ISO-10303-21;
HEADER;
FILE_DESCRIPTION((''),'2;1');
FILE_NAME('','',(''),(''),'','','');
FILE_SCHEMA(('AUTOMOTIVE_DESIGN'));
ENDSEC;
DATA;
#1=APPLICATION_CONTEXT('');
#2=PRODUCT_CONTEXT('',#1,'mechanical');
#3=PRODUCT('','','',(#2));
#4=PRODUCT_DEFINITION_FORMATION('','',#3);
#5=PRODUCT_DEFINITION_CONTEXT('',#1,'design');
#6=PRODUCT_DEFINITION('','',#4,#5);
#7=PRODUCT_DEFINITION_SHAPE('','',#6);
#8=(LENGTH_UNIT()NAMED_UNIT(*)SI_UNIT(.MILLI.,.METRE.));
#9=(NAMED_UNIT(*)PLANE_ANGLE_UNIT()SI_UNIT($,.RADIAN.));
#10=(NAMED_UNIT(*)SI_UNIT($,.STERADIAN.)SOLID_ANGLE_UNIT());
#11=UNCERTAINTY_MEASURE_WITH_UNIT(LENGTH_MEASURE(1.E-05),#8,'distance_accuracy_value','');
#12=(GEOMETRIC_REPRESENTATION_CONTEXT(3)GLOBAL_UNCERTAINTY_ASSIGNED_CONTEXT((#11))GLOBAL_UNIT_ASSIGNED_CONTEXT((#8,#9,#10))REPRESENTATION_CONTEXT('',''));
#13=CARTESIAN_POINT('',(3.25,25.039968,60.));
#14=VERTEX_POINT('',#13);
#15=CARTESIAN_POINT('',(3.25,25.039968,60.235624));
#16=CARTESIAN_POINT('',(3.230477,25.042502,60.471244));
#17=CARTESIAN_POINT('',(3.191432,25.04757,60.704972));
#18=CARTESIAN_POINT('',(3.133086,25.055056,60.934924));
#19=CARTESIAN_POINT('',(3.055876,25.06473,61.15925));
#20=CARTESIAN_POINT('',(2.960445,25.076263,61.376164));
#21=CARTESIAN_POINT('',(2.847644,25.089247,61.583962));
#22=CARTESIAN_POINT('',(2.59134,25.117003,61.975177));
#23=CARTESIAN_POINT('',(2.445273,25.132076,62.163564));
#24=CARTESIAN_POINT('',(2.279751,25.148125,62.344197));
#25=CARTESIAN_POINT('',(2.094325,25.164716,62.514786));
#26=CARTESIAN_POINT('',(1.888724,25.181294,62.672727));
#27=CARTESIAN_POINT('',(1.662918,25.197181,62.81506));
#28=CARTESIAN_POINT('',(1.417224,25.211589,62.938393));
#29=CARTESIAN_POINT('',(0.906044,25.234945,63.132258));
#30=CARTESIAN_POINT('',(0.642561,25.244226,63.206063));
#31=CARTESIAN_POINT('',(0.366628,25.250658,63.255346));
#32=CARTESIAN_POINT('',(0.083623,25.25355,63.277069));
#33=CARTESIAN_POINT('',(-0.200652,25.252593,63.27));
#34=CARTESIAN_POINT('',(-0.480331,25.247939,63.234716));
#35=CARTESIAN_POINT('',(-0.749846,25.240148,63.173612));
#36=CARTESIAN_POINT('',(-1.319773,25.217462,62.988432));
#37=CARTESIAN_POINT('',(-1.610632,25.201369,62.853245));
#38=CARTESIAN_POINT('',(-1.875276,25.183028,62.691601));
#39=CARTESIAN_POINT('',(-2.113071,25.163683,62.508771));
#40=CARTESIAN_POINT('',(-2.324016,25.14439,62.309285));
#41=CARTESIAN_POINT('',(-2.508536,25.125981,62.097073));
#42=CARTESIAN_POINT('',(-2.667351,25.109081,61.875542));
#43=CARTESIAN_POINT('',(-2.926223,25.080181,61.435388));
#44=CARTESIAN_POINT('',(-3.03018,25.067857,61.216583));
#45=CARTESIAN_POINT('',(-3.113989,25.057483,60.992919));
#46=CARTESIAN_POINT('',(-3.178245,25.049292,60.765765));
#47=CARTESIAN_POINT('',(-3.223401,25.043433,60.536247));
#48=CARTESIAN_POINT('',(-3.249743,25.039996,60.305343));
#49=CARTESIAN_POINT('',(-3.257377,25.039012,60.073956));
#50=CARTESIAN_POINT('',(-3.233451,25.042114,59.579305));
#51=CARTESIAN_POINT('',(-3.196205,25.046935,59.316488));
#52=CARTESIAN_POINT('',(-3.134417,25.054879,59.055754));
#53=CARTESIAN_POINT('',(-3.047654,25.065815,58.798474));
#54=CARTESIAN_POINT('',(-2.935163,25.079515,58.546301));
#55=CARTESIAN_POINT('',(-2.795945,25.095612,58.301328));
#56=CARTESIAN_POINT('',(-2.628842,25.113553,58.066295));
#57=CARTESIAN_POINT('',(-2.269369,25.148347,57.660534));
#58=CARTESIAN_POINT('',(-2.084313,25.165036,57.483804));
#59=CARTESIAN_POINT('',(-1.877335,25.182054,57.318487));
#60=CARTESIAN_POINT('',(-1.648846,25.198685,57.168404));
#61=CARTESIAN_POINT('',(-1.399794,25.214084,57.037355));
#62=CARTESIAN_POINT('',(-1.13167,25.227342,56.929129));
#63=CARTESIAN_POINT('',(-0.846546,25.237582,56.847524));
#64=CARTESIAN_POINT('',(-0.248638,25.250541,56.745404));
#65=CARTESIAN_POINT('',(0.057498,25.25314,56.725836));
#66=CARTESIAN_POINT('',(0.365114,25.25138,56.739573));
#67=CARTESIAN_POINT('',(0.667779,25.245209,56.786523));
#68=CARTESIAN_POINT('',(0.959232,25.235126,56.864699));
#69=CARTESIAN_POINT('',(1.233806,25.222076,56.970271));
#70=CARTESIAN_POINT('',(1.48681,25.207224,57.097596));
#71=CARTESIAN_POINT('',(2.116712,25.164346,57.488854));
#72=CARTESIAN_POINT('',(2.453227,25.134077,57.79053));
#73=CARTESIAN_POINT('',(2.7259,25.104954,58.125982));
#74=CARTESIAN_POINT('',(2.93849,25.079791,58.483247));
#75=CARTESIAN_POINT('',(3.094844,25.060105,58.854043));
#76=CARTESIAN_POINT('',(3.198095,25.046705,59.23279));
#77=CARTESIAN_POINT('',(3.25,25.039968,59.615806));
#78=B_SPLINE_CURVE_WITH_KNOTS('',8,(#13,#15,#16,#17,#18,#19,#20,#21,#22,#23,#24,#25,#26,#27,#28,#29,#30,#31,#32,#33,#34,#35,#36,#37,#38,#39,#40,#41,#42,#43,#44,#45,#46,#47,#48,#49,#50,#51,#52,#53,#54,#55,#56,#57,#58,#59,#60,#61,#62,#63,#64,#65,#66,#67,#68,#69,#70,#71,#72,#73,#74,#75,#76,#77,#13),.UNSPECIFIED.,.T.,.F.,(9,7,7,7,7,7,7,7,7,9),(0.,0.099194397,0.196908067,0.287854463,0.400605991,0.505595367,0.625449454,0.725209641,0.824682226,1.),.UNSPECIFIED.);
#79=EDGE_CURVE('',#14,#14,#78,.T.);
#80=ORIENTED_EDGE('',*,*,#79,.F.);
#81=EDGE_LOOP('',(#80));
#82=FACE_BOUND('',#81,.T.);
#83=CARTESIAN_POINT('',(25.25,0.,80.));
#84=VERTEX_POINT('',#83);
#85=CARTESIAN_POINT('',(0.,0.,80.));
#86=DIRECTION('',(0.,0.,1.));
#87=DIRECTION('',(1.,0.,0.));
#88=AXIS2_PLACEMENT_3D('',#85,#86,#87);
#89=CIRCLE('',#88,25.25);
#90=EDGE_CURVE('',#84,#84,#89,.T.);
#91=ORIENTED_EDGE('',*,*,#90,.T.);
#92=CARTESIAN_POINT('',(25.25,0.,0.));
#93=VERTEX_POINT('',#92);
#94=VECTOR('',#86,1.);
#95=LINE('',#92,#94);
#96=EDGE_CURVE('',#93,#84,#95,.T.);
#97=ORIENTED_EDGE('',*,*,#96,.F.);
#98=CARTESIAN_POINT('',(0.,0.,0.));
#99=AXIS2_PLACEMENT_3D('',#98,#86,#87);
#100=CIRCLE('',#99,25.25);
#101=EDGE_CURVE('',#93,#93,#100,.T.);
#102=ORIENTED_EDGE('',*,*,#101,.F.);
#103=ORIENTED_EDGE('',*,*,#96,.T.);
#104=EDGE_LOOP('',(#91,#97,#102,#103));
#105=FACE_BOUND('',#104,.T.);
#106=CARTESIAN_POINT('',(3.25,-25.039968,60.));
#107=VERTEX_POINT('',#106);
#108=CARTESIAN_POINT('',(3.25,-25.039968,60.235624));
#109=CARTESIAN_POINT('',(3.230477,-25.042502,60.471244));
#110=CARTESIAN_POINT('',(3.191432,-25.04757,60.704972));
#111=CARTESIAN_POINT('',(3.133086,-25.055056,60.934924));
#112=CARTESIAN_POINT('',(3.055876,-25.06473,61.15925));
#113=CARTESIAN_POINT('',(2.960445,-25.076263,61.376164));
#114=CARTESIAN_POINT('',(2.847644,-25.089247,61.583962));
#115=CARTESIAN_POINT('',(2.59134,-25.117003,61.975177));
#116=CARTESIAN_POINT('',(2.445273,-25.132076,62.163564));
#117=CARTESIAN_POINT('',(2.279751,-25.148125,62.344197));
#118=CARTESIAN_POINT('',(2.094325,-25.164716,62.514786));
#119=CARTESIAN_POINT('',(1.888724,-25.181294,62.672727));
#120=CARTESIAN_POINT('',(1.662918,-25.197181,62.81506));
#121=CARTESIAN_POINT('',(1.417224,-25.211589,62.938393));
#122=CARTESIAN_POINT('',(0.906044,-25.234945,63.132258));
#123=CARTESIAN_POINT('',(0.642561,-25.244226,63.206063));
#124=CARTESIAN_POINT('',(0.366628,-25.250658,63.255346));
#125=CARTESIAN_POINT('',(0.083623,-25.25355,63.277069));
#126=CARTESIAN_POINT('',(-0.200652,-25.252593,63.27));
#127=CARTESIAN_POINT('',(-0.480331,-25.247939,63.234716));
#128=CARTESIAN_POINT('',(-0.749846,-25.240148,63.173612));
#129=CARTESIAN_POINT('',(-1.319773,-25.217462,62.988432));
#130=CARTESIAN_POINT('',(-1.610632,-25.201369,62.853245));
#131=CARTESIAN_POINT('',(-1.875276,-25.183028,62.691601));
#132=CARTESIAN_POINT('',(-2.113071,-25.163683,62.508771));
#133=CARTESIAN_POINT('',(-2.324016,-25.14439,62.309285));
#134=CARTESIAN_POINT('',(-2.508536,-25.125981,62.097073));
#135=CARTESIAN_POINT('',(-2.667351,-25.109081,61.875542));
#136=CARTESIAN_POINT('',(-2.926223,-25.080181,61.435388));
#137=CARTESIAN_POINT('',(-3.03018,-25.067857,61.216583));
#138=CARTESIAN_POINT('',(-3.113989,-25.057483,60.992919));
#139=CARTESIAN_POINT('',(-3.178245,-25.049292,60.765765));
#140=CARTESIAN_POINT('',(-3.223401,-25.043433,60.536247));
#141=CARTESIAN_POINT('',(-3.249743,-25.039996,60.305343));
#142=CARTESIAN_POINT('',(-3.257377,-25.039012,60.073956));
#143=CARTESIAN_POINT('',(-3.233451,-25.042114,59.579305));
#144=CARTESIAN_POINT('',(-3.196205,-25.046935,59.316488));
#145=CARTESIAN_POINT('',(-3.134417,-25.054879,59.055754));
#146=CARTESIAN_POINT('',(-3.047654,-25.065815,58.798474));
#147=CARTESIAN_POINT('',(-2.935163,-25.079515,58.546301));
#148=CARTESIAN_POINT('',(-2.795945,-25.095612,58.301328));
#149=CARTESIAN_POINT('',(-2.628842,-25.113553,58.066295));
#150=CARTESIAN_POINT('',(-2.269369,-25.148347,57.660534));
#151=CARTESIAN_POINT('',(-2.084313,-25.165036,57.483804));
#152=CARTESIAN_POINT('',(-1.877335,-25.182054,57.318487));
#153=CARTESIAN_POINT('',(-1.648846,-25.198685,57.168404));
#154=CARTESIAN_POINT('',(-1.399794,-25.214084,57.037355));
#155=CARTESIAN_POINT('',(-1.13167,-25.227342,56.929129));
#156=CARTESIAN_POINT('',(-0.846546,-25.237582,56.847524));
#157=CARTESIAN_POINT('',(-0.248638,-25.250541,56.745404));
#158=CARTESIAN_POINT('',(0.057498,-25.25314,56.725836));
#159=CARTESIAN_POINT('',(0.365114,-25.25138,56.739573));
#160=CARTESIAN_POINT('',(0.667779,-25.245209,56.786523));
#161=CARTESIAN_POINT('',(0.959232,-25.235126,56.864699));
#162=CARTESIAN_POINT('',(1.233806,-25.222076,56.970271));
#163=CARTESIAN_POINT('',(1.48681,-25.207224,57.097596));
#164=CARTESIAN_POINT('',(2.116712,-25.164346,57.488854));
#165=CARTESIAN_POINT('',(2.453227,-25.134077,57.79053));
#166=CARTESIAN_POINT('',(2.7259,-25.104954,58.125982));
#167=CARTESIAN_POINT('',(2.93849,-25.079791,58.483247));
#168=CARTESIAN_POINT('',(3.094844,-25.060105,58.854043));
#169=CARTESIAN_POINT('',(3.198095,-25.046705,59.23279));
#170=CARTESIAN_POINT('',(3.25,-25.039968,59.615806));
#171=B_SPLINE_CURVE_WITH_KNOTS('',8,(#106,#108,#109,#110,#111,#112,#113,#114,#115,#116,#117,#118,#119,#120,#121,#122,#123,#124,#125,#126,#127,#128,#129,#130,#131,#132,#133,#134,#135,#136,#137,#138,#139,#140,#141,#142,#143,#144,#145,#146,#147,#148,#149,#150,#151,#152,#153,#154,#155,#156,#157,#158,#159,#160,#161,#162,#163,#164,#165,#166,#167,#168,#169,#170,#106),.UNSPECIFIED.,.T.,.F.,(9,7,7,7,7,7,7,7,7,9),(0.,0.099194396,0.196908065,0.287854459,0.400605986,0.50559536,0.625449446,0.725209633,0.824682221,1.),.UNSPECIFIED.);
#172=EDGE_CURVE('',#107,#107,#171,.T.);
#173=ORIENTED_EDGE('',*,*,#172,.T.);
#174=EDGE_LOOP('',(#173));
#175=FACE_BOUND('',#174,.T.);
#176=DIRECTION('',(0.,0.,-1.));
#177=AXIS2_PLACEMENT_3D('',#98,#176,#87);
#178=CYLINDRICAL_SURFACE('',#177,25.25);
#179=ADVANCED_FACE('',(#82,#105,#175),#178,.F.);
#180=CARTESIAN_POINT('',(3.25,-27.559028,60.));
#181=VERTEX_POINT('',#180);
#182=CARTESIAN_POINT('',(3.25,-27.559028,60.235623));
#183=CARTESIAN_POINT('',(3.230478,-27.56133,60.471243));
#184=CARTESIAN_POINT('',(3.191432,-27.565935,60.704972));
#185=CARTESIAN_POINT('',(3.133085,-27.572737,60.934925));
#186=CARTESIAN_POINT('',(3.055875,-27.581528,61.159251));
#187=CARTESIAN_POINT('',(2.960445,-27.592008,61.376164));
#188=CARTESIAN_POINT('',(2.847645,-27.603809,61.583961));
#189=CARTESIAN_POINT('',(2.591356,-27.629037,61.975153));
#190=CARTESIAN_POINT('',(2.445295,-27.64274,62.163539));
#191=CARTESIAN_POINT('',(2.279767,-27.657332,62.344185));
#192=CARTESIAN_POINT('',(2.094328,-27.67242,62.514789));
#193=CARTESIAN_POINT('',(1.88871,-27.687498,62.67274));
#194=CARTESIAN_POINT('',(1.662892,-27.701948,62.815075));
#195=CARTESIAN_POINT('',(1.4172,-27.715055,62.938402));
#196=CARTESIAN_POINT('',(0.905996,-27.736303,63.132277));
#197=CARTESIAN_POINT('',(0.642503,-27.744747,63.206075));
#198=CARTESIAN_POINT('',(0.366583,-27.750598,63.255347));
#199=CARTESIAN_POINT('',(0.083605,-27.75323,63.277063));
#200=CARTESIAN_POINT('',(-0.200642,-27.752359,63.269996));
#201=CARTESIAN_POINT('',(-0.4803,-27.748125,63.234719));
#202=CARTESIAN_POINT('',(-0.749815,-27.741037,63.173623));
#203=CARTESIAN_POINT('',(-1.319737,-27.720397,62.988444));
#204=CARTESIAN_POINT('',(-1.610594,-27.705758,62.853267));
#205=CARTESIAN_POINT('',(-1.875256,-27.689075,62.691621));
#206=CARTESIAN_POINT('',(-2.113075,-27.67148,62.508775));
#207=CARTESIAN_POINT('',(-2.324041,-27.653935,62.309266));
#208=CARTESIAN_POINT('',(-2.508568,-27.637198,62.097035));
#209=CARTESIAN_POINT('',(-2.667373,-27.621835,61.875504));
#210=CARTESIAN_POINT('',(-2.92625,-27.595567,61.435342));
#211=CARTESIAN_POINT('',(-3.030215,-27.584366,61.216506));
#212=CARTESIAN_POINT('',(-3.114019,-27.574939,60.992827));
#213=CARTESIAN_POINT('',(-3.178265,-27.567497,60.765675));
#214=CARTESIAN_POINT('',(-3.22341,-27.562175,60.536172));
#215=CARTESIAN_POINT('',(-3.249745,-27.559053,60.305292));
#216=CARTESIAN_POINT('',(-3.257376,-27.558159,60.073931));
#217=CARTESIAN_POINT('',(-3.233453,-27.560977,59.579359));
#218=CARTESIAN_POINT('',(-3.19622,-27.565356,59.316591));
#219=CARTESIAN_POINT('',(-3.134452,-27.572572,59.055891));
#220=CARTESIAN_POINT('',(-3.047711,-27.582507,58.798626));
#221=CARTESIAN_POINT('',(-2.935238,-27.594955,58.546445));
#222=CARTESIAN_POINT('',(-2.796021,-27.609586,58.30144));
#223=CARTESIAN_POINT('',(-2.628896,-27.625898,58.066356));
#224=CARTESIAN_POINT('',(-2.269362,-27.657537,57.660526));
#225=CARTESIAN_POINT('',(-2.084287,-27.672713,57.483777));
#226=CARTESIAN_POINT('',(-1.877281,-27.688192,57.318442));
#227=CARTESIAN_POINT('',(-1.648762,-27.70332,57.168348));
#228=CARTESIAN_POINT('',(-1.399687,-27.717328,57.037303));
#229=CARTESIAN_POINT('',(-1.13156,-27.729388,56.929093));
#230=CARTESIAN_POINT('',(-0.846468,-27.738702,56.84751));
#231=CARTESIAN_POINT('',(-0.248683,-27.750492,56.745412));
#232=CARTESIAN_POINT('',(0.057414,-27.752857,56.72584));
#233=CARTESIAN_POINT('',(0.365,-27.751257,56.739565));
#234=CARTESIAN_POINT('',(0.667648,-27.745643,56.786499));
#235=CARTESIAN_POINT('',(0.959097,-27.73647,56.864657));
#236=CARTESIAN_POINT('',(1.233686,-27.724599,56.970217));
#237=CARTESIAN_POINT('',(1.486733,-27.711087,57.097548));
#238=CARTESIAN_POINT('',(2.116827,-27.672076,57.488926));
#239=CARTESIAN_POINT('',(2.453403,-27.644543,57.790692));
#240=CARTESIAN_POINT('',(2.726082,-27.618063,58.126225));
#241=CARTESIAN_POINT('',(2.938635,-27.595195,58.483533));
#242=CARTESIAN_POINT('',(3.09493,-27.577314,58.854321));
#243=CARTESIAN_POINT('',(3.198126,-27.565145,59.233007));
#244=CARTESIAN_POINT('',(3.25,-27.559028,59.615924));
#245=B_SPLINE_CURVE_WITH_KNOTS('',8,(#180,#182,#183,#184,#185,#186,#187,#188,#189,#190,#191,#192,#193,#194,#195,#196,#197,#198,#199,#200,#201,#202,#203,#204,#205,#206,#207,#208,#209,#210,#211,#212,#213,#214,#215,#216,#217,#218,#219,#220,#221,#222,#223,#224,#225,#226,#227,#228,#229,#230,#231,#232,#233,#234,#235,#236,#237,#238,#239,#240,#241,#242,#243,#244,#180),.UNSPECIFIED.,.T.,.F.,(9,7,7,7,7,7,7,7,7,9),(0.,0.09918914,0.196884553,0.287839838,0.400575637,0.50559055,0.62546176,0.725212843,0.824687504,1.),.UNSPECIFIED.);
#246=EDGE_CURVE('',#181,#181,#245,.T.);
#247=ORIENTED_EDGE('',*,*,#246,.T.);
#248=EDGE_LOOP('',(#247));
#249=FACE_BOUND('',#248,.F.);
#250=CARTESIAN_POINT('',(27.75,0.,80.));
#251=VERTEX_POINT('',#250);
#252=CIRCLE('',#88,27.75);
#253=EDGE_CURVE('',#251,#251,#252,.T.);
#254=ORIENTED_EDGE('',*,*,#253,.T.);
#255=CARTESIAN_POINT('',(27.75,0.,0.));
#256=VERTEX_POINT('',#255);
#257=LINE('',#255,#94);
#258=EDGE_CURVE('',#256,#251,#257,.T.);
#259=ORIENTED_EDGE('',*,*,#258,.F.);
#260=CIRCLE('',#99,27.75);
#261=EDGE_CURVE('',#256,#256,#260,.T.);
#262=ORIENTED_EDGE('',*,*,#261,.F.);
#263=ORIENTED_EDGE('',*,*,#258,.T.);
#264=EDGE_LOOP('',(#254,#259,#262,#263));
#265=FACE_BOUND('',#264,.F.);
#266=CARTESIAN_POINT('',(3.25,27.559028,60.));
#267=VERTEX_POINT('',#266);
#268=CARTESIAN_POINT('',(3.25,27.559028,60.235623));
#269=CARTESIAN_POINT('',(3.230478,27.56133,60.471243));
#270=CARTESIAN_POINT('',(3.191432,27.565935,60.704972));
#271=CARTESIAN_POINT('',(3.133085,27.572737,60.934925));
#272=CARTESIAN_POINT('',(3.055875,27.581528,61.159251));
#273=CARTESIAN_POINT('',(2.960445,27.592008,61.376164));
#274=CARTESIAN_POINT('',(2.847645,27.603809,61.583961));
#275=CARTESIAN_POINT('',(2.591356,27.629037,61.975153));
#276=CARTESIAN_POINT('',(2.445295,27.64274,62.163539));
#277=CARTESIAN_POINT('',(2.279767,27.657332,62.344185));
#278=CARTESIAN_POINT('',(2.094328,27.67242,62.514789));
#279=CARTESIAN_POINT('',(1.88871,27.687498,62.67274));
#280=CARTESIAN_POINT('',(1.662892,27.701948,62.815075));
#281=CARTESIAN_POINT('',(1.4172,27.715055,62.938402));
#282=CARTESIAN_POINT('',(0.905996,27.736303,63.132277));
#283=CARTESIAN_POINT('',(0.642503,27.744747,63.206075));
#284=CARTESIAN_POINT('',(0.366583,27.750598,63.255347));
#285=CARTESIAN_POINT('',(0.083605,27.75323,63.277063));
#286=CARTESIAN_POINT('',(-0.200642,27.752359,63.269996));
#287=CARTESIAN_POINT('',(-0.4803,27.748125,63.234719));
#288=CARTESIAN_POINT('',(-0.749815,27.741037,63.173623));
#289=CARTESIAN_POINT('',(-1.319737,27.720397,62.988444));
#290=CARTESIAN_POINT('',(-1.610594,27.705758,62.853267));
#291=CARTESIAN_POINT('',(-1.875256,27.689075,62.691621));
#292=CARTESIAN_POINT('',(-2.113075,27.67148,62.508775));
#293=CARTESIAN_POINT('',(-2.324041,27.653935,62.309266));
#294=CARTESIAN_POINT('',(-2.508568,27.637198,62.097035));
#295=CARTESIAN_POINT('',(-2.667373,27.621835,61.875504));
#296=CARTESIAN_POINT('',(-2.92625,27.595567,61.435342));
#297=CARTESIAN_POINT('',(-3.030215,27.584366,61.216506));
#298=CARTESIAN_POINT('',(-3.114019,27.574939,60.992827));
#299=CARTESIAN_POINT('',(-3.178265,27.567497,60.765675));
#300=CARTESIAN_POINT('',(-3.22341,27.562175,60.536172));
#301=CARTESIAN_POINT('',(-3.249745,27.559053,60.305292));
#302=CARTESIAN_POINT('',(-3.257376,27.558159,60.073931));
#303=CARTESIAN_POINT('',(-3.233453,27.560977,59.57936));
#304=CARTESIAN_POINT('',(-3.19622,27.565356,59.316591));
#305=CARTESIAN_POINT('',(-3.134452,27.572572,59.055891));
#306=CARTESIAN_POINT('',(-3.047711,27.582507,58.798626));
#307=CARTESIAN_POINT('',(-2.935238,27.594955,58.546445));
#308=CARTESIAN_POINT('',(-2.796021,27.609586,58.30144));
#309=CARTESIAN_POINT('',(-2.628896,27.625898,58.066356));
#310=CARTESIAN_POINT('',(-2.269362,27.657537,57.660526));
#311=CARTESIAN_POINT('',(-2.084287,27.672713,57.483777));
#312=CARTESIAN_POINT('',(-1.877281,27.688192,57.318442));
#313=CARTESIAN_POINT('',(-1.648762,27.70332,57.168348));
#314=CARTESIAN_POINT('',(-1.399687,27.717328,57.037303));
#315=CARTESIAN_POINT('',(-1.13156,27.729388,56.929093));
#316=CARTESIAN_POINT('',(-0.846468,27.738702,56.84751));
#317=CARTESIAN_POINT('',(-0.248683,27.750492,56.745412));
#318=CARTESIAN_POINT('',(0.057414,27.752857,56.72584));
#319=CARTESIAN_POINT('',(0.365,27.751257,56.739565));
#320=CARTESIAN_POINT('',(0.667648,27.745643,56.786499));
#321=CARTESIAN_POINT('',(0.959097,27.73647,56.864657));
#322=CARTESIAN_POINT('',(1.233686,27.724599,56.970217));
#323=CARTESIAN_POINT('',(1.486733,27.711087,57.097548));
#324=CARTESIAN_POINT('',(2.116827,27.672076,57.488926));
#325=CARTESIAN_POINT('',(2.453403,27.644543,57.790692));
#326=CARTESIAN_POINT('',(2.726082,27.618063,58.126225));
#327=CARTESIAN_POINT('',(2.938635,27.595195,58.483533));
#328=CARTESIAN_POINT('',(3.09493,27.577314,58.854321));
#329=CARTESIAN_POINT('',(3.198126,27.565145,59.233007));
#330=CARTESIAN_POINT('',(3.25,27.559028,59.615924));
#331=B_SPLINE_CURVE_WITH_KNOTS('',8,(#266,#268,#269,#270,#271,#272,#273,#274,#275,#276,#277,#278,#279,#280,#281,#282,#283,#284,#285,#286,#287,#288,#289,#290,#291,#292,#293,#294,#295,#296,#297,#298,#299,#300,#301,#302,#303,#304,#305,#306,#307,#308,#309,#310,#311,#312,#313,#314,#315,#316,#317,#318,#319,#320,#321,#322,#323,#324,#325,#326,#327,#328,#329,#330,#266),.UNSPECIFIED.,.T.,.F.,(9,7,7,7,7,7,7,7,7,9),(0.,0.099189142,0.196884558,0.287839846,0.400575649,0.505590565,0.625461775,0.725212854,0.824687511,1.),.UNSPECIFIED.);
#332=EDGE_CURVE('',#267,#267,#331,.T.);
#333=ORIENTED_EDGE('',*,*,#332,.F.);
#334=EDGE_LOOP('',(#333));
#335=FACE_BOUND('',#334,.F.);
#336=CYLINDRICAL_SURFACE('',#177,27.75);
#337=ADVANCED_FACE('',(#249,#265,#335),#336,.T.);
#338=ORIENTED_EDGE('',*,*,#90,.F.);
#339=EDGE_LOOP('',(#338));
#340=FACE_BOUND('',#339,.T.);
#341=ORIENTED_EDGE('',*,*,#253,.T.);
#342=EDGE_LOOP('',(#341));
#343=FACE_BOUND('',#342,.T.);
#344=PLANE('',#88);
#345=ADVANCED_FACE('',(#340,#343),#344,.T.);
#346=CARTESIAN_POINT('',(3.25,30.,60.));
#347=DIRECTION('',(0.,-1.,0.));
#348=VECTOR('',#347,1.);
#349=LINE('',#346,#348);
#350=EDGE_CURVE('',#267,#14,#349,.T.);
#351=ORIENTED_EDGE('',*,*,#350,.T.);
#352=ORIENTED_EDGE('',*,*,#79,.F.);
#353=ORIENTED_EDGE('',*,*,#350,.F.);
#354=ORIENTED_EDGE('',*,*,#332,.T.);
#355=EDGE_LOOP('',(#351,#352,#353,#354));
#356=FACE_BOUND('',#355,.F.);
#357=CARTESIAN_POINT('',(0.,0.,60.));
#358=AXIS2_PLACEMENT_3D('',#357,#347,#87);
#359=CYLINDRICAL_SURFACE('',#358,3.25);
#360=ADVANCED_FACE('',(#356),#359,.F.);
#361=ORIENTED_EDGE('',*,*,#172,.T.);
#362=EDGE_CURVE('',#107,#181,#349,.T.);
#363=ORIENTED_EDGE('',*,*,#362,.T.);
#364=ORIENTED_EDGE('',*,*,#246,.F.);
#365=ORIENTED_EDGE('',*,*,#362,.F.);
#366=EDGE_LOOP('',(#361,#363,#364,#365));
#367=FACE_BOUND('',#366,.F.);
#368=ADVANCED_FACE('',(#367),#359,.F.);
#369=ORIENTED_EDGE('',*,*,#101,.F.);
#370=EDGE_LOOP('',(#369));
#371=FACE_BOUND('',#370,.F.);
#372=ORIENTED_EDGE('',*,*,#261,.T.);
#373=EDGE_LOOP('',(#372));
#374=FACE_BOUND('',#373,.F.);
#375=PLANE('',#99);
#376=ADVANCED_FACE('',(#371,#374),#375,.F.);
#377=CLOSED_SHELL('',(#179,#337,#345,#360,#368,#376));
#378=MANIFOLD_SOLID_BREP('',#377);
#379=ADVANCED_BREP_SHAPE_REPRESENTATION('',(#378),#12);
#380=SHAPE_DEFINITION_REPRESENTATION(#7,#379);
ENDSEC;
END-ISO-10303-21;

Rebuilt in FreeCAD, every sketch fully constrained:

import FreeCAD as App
import Part
import Sketcher
Q = App.Units.Quantity


def faces_at(feature, points):
    """Names of the faces that lie closest to the given points."""
    faces = feature.Shape.Faces
    near = lambda p: min(range(len(faces)), key=lambda i: faces[i].distToShape(Part.Vertex(*p))[0])
    return sorted({f"Face{near(p) + 1}" for p in points})

doc = App.newDocument("Part")
body = doc.addObject("PartDesign::Body", "Body")

# Sketch on XY plane
sketch1 = body.newObject("Sketcher::SketchObject", "Sketch")
sketch1.AttachmentSupport = (doc.getObject("XY_Plane"), [""])
sketch1.MapMode = "FlatFace"
sketch1.addGeometry(Part.Circle(App.Vector(0, 0, 0), App.Vector(0, 0, 1), 28), False)
sketch1.addConstraint([
    Sketcher.Constraint("Coincident", 0, 3, -1, 1),
    Sketcher.Constraint("Diameter", 0, Q("55.5 mm")),
])
pad1 = body.newObject("PartDesign::Pad", "Pad")
pad1.Profile = sketch1
pad1.Length = 80
doc.recompute()

thickness = body.newObject("PartDesign::Thickness", "Thickness")
thickness.Base = (pad1, faces_at(pad1, [(0, 0, 80), (0, 0, 0)]))
thickness.Value = 2.5
thickness.Reversed = True
thickness.Join = "Arc"

# Sketch on XZ plane
sketch2 = body.newObject("Sketcher::SketchObject", "Sketch001")
sketch2.AttachmentSupport = (doc.getObject("XZ_Plane"), [""])
sketch2.MapMode = "FlatFace"
sketch2.addGeometry(Part.Circle(App.Vector(0, 60, 0), App.Vector(0, 0, 1), 3.2), False)
sketch2.addConstraint([
    Sketcher.Constraint("PointOnObject", 0, 3, -2),
    Sketcher.Constraint("Diameter", 0, Q("6.5 mm")),
    Sketcher.Constraint("DistanceY", -1, 1, 0, 3, Q("60 mm")),
])
pocket1 = body.newObject("PartDesign::Pocket", "Pocket")
pocket1.Profile = sketch2
pocket1.Length = 60
pocket1.Midplane = True

doc.recompute()
